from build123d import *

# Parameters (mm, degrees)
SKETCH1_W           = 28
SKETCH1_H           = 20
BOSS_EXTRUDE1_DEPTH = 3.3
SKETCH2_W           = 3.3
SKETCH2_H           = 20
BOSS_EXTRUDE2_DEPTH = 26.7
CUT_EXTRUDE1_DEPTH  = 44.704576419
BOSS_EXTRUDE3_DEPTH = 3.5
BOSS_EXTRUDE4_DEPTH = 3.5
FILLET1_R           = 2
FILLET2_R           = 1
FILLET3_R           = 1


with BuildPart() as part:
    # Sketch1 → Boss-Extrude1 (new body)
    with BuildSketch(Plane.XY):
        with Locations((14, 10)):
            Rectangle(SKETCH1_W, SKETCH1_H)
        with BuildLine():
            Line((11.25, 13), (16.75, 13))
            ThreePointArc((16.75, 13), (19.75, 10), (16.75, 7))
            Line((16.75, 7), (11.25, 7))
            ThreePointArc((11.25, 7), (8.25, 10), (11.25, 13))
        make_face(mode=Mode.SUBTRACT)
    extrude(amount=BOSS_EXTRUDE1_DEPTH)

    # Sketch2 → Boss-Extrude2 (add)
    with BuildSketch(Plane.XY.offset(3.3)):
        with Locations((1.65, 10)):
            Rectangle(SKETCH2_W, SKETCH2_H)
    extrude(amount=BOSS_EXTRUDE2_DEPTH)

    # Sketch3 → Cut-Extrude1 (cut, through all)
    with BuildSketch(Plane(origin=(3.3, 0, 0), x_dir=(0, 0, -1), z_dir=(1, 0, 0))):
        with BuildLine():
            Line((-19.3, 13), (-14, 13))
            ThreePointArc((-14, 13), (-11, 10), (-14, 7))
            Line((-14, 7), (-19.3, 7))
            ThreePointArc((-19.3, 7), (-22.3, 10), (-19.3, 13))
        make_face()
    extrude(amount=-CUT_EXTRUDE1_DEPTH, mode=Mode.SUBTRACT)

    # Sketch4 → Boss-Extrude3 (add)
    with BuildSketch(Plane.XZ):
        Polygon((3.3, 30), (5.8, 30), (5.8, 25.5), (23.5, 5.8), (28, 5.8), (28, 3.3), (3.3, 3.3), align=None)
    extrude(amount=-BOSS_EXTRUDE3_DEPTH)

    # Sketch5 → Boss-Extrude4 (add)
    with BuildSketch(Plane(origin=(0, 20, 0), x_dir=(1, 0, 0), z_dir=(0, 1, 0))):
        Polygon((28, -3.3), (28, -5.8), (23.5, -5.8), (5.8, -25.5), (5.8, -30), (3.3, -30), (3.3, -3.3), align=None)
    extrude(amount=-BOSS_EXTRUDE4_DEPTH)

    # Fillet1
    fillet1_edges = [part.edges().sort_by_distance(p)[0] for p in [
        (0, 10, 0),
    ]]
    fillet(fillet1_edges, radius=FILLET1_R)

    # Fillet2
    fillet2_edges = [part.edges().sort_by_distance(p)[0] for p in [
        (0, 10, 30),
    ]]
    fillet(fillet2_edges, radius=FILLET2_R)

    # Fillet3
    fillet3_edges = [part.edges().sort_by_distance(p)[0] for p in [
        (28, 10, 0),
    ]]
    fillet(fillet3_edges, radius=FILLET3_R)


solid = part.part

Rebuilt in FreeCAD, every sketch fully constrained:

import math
import FreeCAD as App
import Part
import Sketcher
from FreeCAD import Vector


def edges_at(feature, points):
    """Names of the edges that pass closest to the given points."""
    edges = feature.Shape.Edges
    near = lambda p: min(range(len(edges)), key=lambda i: edges[i].distToShape(Part.Vertex(*p))[0])
    return sorted({f"Edge{near(p) + 1}" for p in points})

doc = App.newDocument("Part")
body = doc.addObject("PartDesign::Body", "Body")

# Sketch on XY plane
sketch1 = body.newObject("Sketcher::SketchObject", "Sketch")
sketch1.AttachmentSupport = (doc.getObject("XY_Plane"), [""])
sketch1.MapMode = "FlatFace"
sketch1.addGeometry(Part.LineSegment(Vector(0, 20, 0), Vector(0, 0, 0)), False)
sketch1.addGeometry(Part.LineSegment(Vector(0, 0, 0), Vector(28, 0, 0)), False)
sketch1.addGeometry(Part.LineSegment(Vector(28, 0, 0), Vector(28, 20, 0)), False)
sketch1.addGeometry(Part.LineSegment(Vector(28, 20, 0), Vector(0, 20, 0)), False)
sketch1.addGeometry(Part.ArcOfCircle(Part.Circle(Vector(11.2, 10, 0), Vector(0, 0, 1), 3), math.radians(90), math.radians(270)), False)
sketch1.addGeometry(Part.LineSegment(Vector(11.2, 13, 0), Vector(16.8, 13, 0)), False)
sketch1.addGeometry(Part.ArcOfCircle(Part.Circle(Vector(16.8, 10, 0), Vector(0, 0, 1), 3), math.radians(-90), math.radians(90)), False)
sketch1.addGeometry(Part.LineSegment(Vector(16.8, 7, 0), Vector(11.2, 7, 0)), False)
sketch1.addConstraint(Sketcher.Constraint("Coincident", 0, 2, 1, 1))
sketch1.addConstraint(Sketcher.Constraint("Coincident", 1, 2, 2, 1))
sketch1.addConstraint(Sketcher.Constraint("Coincident", 2, 2, 3, 1))
sketch1.addConstraint(Sketcher.Constraint("Coincident", 3, 2, 0, 1))
sketch1.addConstraint(Sketcher.Constraint("Tangent", 4, 1, 5, 1))
sketch1.addConstraint(Sketcher.Constraint("Tangent", 5, 2, 6, 2))
sketch1.addConstraint(Sketcher.Constraint("Tangent", 6, 1, 7, 1))
sketch1.addConstraint(Sketcher.Constraint("Tangent", 7, 2, 4, 2))
sketch1.addConstraint(Sketcher.Constraint("Vertical", 0))
sketch1.addConstraint(Sketcher.Constraint("Horizontal", 1))
sketch1.addConstraint(Sketcher.Constraint("Vertical", 2))
sketch1.addConstraint(Sketcher.Constraint("Horizontal", 3))
sketch1.addConstraint(Sketcher.Constraint("Horizontal", 5))
sketch1.addConstraint(Sketcher.Constraint("Horizontal", 7))
sketch1.addConstraint(Sketcher.Constraint("Coincident", 0, 2, -1, 1))
sketch1.addConstraint(Sketcher.Constraint("Radius", 4, 3.0))
sketch1.addConstraint(Sketcher.Constraint("DistanceX", 1, 1, 1, 2, 28.0))
sketch1.addConstraint(Sketcher.Constraint("DistanceY", 0, 2, 0, 1, 20.0))
sketch1.addConstraint(Sketcher.Constraint("DistanceX", 5, 1, 5, 2, 5.5))
sketch1.addConstraint(Sketcher.Constraint("DistanceY", -1, 1, 4, 3, 10.0))
sketch1.addConstraint(Sketcher.Constraint("DistanceX", -1, 1, 4, 3, 11.25))
pad1 = body.newObject("PartDesign::Pad", "Pad")
pad1.Profile = sketch1
pad1.Length = 3.3

# Sketch on XY plane
sketch2 = body.newObject("Sketcher::SketchObject", "Sketch001")
sketch2.AttachmentSupport = (doc.getObject("XY_Plane"), [""])
sketch2.MapMode = "FlatFace"
sketch2.AttachmentOffset = App.Placement(Vector(0, 0, 3.3), App.Rotation())
sketch2.addGeometry(Part.LineSegment(Vector(0, 20, 0), Vector(0, 0, 0)), False)
sketch2.addGeometry(Part.LineSegment(Vector(0, 0, 0), Vector(3.3, 0, 0)), False)
sketch2.addGeometry(Part.LineSegment(Vector(3.3, 0, 0), Vector(3.3, 20, 0)), False)
sketch2.addGeometry(Part.LineSegment(Vector(3.3, 20, 0), Vector(0, 20, 0)), False)
sketch2.addConstraint(Sketcher.Constraint("Coincident", 0, 2, 1, 1))
sketch2.addConstraint(Sketcher.Constraint("Coincident", 1, 2, 2, 1))
sketch2.addConstraint(Sketcher.Constraint("Coincident", 2, 2, 3, 1))
sketch2.addConstraint(Sketcher.Constraint("Coincident", 3, 2, 0, 1))
sketch2.addConstraint(Sketcher.Constraint("Vertical", 0))
sketch2.addConstraint(Sketcher.Constraint("Horizontal", 1))
sketch2.addConstraint(Sketcher.Constraint("Vertical", 2))
sketch2.addConstraint(Sketcher.Constraint("Horizontal", 3))
sketch2.addConstraint(Sketcher.Constraint("Coincident", 0, 2, -1, 1))
sketch2.addConstraint(Sketcher.Constraint("DistanceY", 0, 2, 0, 1, 20.0))
sketch2.addConstraint(Sketcher.Constraint("DistanceX", 1, 1, 1, 2, 3.3))
pad2 = body.newObject("PartDesign::Pad", "Pad001")
pad2.Profile = sketch2
pad2.Length = 26.7

# Sketch on YZ plane
sketch3 = body.newObject("Sketcher::SketchObject", "Sketch002")
sketch3.AttachmentSupport = (doc.getObject("YZ_Plane"), [""])
sketch3.MapMode = "FlatFace"
sketch3.AttachmentOffset = App.Placement(Vector(0, 0, 3.3), App.Rotation())
sketch3.addGeometry(Part.LineSegment(Vector(13, 14, 0), Vector(13, 19.3, 0)), False)
sketch3.addGeometry(Part.ArcOfCircle(Part.Circle(Vector(10, 19.3, 0), Vector(0, 0, 1), 3), math.radians(0), math.radians(180)), False)
sketch3.addGeometry(Part.LineSegment(Vector(7, 19.3, 0), Vector(7, 14, 0)), False)
sketch3.addGeometry(Part.ArcOfCircle(Part.Circle(Vector(10, 14, 0), Vector(0, 0, 1), 3), math.radians(180), math.radians(360)), False)
sketch3.addConstraint(Sketcher.Constraint("Tangent", 0, 2, 1, 1))
sketch3.addConstraint(Sketcher.Constraint("Tangent", 1, 2, 2, 1))
sketch3.addConstraint(Sketcher.Constraint("Tangent", 2, 2, 3, 1))
sketch3.addConstraint(Sketcher.Constraint("Tangent", 3, 2, 0, 1))
sketch3.addConstraint(Sketcher.Constraint("Vertical", 0))
sketch3.addConstraint(Sketcher.Constraint("Vertical", 2))
sketch3.addConstraint(Sketcher.Constraint("Radius", 1, 3.0))
sketch3.addConstraint(Sketcher.Constraint("DistanceY", 0, 1, 0, 2, 5.3))
sketch3.addConstraint(Sketcher.Constraint("DistanceX", -1, 1, 1, 3, 10.0))
sketch3.addConstraint(Sketcher.Constraint("DistanceY", -1, 1, 3, 3, 14.0))
pocket1 = body.newObject("PartDesign::Pocket", "Pocket")
pocket1.Profile = sketch3
pocket1.Type = "ThroughAll"

# Sketch on XZ plane
sketch4 = body.newObject("Sketcher::SketchObject", "Sketch003")
sketch4.AttachmentSupport = (doc.getObject("XZ_Plane"), [""])
sketch4.MapMode = "FlatFace"
sketch4.addGeometry(Part.LineSegment(Vector(5.8, 30, 0), Vector(3.3, 30, 0)), False)
sketch4.addGeometry(Part.LineSegment(Vector(3.3, 30, 0), Vector(3.3, 3.3, 0)), False)
sketch4.addGeometry(Part.LineSegment(Vector(3.3, 3.3, 0), Vector(28, 3.3, 0)), False)
sketch4.addGeometry(Part.LineSegment(Vector(28, 3.3, 0), Vector(28, 5.8, 0)), False)
sketch4.addGeometry(Part.LineSegment(Vector(28, 5.8, 0), Vector(23.5, 5.8, 0)), False)
sketch4.addGeometry(Part.LineSegment(Vector(23.5, 5.8, 0), Vector(5.8, 25.5, 0)), False)
sketch4.addGeometry(Part.LineSegment(Vector(5.8, 25.5, 0), Vector(5.8, 30, 0)), False)
sketch4.addConstraint(Sketcher.Constraint("Coincident", 0, 2, 1, 1))
sketch4.addConstraint(Sketcher.Constraint("Coincident", 1, 2, 2, 1))
sketch4.addConstraint(Sketcher.Constraint("Coincident", 2, 2, 3, 1))
sketch4.addConstraint(Sketcher.Constraint("Coincident", 3, 2, 4, 1))
sketch4.addConstraint(Sketcher.Constraint("Coincident", 4, 2, 5, 1))
sketch4.addConstraint(Sketcher.Constraint("Coincident", 5, 2, 6, 1))
sketch4.addConstraint(Sketcher.Constraint("Coincident", 6, 2, 0, 1))
sketch4.addConstraint(Sketcher.Constraint("Horizontal", 0))
sketch4.addConstraint(Sketcher.Constraint("Vertical", 1))
sketch4.addConstraint(Sketcher.Constraint("Horizontal", 2))
sketch4.addConstraint(Sketcher.Constraint("Vertical", 3))
sketch4.addConstraint(Sketcher.Constraint("Horizontal", 4))
sketch4.addConstraint(Sketcher.Constraint("Vertical", 6))
sketch4.addConstraint(Sketcher.Constraint("Equal", 0, 3))
sketch4.addConstraint(Sketcher.Constraint("Equal", 4, 6))
sketch4.addConstraint(Sketcher.Constraint("DistanceX", 0, 2, 0, 1, 2.5))
sketch4.addConstraint(Sketcher.Constraint("DistanceX", 2, 1, 2, 2, 24.7))
sketch4.addConstraint(Sketcher.Constraint("DistanceX", 4, 2, 4, 1, 4.5))
sketch4.addConstraint(Sketcher.Constraint("DistanceY", 1, 2, 1, 1, 26.7))
sketch4.addConstraint(Sketcher.Constraint("DistanceY", -1, 1, 0, 2, 30.0))
sketch4.addConstraint(Sketcher.Constraint("DistanceX", -1, 1, 2, 2, 28.0))
pad3 = body.newObject("PartDesign::Pad", "Pad002")
pad3.Profile = sketch4
pad3.Length = 3.5
pad3.Reversed = True

# Sketch on XZ plane
sketch5 = body.newObject("Sketcher::SketchObject", "Sketch004")
sketch5.AttachmentSupport = (doc.getObject("XZ_Plane"), [""])
sketch5.MapMode = "FlatFace"
sketch5.AttachmentOffset = App.Placement(Vector(0, 0, -20), App.Rotation())
sketch5.addGeometry(Part.LineSegment(Vector(28, 5.8, 0), Vector(28, 3.3, 0)), False)
sketch5.addGeometry(Part.LineSegment(Vector(28, 3.3, 0), Vector(3.3, 3.3, 0)), False)
sketch5.addGeometry(Part.LineSegment(Vector(3.3, 3.3, 0), Vector(3.3, 30, 0)), False)
sketch5.addGeometry(Part.LineSegment(Vector(3.3, 30, 0), Vector(5.8, 30, 0)), False)
sketch5.addGeometry(Part.LineSegment(Vector(5.8, 30, 0), Vector(5.8, 25.5, 0)), False)
sketch5.addGeometry(Part.LineSegment(Vector(5.8, 25.5, 0), Vector(23.5, 5.8, 0)), False)
sketch5.addGeometry(Part.LineSegment(Vector(23.5, 5.8, 0), Vector(28, 5.8, 0)), False)
sketch5.addConstraint(Sketcher.Constraint("Coincident", 0, 2, 1, 1))
sketch5.addConstraint(Sketcher.Constraint("Coincident", 1, 2, 2, 1))
sketch5.addConstraint(Sketcher.Constraint("Coincident", 2, 2, 3, 1))
sketch5.addConstraint(Sketcher.Constraint("Coincident", 3, 2, 4, 1))
sketch5.addConstraint(Sketcher.Constraint("Coincident", 4, 2, 5, 1))
sketch5.addConstraint(Sketcher.Constraint("Coincident", 5, 2, 6, 1))
sketch5.addConstraint(Sketcher.Constraint("Coincident", 6, 2, 0, 1))
sketch5.addConstraint(Sketcher.Constraint("Vertical", 0))
sketch5.addConstraint(Sketcher.Constraint("Horizontal", 1))
sketch5.addConstraint(Sketcher.Constraint("Vertical", 2))
sketch5.addConstraint(Sketcher.Constraint("Horizontal", 3))
sketch5.addConstraint(Sketcher.Constraint("Vertical", 4))
sketch5.addConstraint(Sketcher.Constraint("Horizontal", 6))
sketch5.addConstraint(Sketcher.Constraint("Equal", 3, 0))
sketch5.addConstraint(Sketcher.Constraint("Equal", 6, 4))
sketch5.addConstraint(Sketcher.Constraint("DistanceX", 1, 2, 1, 1, 24.7))
sketch5.addConstraint(Sketcher.Constraint("DistanceX", 3, 1, 3, 2, 2.5))
sketch5.addConstraint(Sketcher.Constraint("DistanceX", 6, 1, 6, 2, 4.5))
sketch5.addConstraint(Sketcher.Constraint("DistanceY", 2, 1, 2, 2, 26.7))
sketch5.addConstraint(Sketcher.Constraint("DistanceX", -1, 1, 0, 2, 28.0))
sketch5.addConstraint(Sketcher.Constraint("DistanceY", -1, 1, 2, 2, 30.0))
pad4 = body.newObject("PartDesign::Pad", "Pad003")
pad4.Profile = sketch5
pad4.Length = 3.5
doc.recompute()

fillet = body.newObject("PartDesign::Fillet", "Fillet")
fillet.Base = (pad4, edges_at(pad4, [(0, 10, 0)]))
fillet.Radius = 2
doc.recompute()

fillet2 = body.newObject("PartDesign::Fillet", "Fillet001")
fillet2.Base = (fillet, edges_at(fillet, [(0, 10, 30)]))
fillet2.Radius = 1
doc.recompute()

fillet3 = body.newObject("PartDesign::Fillet", "Fillet002")
fillet3.Base = (fillet2, edges_at(fillet2, [(28, 10, 0)]))
fillet3.Radius = 1

doc.recompute()
